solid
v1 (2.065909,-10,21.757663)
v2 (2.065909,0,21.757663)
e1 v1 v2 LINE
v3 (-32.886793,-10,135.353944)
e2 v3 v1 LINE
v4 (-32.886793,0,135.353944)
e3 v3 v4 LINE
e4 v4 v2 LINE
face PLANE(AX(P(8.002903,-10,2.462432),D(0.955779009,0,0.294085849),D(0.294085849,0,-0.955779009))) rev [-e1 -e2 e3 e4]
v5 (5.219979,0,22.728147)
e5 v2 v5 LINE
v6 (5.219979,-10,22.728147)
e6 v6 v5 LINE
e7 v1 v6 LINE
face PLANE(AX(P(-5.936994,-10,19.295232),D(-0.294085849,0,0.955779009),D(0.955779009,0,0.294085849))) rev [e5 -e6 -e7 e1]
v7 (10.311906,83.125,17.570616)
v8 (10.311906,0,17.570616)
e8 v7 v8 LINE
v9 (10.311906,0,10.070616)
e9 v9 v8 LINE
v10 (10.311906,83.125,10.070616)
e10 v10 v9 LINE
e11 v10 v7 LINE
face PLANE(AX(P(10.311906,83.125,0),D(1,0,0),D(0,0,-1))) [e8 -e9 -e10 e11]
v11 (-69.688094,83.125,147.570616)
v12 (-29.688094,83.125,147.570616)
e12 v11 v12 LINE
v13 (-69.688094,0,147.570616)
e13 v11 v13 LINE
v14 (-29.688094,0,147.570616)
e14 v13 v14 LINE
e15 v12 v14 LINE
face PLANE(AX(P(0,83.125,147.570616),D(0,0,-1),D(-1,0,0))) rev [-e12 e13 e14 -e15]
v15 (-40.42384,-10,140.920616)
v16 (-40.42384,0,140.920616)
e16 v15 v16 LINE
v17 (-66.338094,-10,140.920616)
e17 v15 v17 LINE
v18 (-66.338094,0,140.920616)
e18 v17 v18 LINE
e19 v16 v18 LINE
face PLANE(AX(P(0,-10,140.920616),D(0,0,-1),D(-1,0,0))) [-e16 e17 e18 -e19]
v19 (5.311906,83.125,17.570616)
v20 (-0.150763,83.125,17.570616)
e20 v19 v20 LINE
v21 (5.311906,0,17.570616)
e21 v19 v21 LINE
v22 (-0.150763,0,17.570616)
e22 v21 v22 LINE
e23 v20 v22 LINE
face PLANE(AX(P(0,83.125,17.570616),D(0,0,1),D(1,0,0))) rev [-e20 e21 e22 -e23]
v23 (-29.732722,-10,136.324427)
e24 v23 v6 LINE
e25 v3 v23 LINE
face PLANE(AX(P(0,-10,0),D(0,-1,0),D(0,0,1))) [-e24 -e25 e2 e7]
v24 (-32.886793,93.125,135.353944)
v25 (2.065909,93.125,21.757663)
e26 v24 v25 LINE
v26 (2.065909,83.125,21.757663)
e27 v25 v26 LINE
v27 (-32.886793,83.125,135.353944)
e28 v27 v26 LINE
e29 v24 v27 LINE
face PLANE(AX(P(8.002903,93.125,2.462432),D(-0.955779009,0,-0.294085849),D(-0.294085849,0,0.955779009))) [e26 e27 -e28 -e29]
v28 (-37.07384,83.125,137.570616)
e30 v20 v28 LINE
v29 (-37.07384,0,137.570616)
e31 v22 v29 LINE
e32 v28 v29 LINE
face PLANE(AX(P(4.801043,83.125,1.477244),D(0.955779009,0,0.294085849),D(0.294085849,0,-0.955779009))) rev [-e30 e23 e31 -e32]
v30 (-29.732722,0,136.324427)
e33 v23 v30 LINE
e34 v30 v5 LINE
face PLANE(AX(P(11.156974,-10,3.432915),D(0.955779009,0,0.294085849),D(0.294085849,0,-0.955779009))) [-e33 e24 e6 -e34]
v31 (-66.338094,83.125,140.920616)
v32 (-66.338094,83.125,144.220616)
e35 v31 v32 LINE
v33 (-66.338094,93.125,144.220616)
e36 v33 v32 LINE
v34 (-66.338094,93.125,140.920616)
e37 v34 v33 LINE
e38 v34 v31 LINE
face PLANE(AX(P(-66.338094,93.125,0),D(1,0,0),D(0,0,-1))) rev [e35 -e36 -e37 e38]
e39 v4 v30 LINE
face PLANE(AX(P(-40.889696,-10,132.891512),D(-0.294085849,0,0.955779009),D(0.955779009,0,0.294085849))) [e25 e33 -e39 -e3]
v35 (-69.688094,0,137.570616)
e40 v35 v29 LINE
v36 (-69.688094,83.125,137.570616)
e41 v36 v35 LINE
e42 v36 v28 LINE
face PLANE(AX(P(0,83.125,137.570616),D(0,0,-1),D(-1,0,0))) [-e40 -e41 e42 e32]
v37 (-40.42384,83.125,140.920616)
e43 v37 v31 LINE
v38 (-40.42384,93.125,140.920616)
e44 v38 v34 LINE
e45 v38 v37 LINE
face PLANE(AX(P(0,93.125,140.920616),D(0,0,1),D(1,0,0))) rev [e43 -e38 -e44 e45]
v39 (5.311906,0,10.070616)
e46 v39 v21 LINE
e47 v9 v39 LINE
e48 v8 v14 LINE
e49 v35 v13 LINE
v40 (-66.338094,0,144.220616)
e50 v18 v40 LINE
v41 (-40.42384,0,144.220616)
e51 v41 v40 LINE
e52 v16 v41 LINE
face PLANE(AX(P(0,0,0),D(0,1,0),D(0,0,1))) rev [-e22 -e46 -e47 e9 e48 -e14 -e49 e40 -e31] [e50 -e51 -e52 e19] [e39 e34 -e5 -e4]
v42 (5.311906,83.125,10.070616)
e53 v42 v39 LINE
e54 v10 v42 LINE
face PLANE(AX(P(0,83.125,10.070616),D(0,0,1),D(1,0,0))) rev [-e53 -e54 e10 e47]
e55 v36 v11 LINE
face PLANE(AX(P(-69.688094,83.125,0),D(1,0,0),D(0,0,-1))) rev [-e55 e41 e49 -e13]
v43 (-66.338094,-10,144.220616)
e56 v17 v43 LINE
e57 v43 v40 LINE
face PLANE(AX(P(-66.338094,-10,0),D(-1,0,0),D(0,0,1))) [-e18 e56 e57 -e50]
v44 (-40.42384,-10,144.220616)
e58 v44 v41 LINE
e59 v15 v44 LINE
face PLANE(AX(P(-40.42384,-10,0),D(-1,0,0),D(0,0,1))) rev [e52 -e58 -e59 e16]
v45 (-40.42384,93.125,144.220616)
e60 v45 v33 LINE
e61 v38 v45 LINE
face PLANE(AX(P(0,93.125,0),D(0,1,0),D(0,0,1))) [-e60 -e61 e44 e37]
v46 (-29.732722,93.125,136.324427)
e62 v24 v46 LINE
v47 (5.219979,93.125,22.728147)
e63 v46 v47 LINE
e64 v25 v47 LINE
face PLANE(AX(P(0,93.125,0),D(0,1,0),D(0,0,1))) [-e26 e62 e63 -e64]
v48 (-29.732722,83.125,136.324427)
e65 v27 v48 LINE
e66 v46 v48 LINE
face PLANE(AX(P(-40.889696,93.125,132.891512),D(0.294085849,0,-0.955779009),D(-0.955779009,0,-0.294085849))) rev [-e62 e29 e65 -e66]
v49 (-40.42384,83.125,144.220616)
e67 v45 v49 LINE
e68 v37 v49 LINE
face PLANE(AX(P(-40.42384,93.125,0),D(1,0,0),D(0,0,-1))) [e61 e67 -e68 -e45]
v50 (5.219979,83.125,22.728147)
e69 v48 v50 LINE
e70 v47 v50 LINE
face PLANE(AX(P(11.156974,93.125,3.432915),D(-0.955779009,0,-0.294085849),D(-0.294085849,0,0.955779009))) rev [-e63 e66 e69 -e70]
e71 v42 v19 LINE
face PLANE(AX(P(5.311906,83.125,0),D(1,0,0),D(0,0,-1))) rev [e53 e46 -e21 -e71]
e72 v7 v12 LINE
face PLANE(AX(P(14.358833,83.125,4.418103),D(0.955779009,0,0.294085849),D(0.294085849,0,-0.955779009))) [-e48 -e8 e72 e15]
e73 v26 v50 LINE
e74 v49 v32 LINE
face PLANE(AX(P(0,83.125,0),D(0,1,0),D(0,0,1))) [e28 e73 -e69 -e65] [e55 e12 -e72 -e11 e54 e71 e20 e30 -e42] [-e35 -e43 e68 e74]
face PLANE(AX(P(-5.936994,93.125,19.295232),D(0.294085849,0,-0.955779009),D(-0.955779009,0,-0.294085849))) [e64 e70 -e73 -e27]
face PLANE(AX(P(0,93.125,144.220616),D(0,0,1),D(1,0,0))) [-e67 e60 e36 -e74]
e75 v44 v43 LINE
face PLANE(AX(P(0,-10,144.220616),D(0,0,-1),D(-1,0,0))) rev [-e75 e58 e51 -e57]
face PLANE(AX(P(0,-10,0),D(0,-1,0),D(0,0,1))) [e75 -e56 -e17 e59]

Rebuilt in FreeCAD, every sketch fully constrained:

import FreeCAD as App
import Part
import Sketcher
from FreeCAD import Vector

doc = App.newDocument("Part")
body = doc.addObject("PartDesign::Body", "Body")

# Sketch on XZ plane
sketch1 = body.newObject("Sketcher::SketchObject", "Sketch")
sketch1.AttachmentSupport = (doc.getObject("XZ_Plane"), [""])
sketch1.MapMode = "FlatFace"
sketch1.addGeometry([
    Part.LineSegment(Vector(-70, 148, 0), Vector(-30, 148, 0)),  # 0
    Part.LineSegment(Vector(-30, 148, 0), Vector(10, 18, 0)),  # 1
    Part.LineSegment(Vector(10, 18, 0), Vector(10, 10, 0)),  # 2
    Part.LineSegment(Vector(10, 10, 0), Vector(5, 10, 0)),  # 3
    Part.LineSegment(Vector(5, 10, 0), Vector(5, 18, 0)),  # 4
    Part.LineSegment(Vector(5, 18, 0), Vector(0, 18, 0)),  # 5
    Part.LineSegment(Vector(0, 18, 0), Vector(-37, 138, 0)),  # 6
    Part.LineSegment(Vector(-37, 138, 0), Vector(-70, 138, 0)),  # 7
    Part.LineSegment(Vector(-70, 138, 0), Vector(-70, 148, 0)),  # 8
], False)
sketch1.addConstraint([
    Sketcher.Constraint("Coincident", 0, 2, 1, 1),
    Sketcher.Constraint("Coincident", 1, 2, 2, 1),
    Sketcher.Constraint("Coincident", 2, 2, 3, 1),
    Sketcher.Constraint("Coincident", 3, 2, 4, 1),
    Sketcher.Constraint("Coincident", 4, 2, 5, 1),
    Sketcher.Constraint("Coincident", 5, 2, 6, 1),
    Sketcher.Constraint("Coincident", 6, 2, 7, 1),
    Sketcher.Constraint("Coincident", 7, 2, 8, 1),
    Sketcher.Constraint("Coincident", 8, 2, 0, 1),
    Sketcher.Constraint("Horizontal", 0),
    Sketcher.Constraint("Vertical", 2),
    Sketcher.Constraint("Horizontal", 3),
    Sketcher.Constraint("Vertical", 4),
    Sketcher.Constraint("Horizontal", 5),
    Sketcher.Constraint("Horizontal", 7),
    Sketcher.Constraint("Vertical", 8),
    Sketcher.Constraint("Parallel", 1, 6),
    Sketcher.Constraint("Horizontal", 1, 2, 4, 2),
    Sketcher.Constraint("DistanceX", 0, 1, 0, 2, 40.0),
    Sketcher.Constraint("DistanceX", 3, 2, 3, 1, 5.0),
    Sketcher.Constraint("DistanceY", 8, 1, 8, 2, 10.0),
    Sketcher.Constraint("DistanceY", 2, 2, 2, 1, 7.5),
    Sketcher.Constraint("DistanceX", 0, 2, 1, 2, 40.0),
    Sketcher.Constraint("DistanceY", 1, 2, 0, 2, 130.0),
    Sketcher.Constraint("DistanceX", 5, 2, 5, 1, 5.46267),
    Sketcher.Constraint("DistanceX", 6, 2, -1, 1, 37.07384),
    Sketcher.Constraint("DistanceY", -1, 1, 0, 2, 147.570616),
])
pad1 = body.newObject("PartDesign::Pad", "Pad")
pad1.Profile = sketch1
pad1.Length = 83.125
pad1.Reversed = True

# Sketch on XZ plane
sketch2 = body.newObject("Sketcher::SketchObject", "Sketch001")
sketch2.AttachmentSupport = (doc.getObject("XZ_Plane"), [""])
sketch2.MapMode = "FlatFace"
sketch2.AttachmentOffset = App.Placement(Vector(0, 0, -83.125), App.Rotation())
sketch2.addGeometry([
    Part.LineSegment(Vector(2.1, 21.8, 0), Vector(-32.9, 135.4, 0)),  # 0
    Part.LineSegment(Vector(-32.9, 135.4, 0), Vector(-29.7, 136.3, 0)),  # 1
    Part.LineSegment(Vector(-29.7, 136.3, 0), Vector(5.2, 22.7, 0)),  # 2
    Part.LineSegment(Vector(5.2, 22.7, 0), Vector(2.1, 21.8, 0)),  # 3
    Part.LineSegment(Vector(-40.4, 144.2, 0), Vector(-40.4, 140.9, 0)),  # 4
    Part.LineSegment(Vector(-40.4, 140.9, 0), Vector(-66.3, 140.9, 0)),  # 5
    Part.LineSegment(Vector(-66.3, 140.9, 0), Vector(-66.3, 144.2, 0)),  # 6
    Part.LineSegment(Vector(-66.3, 144.2, 0), Vector(-40.4, 144.2, 0)),  # 7
], False)
sketch2.addConstraint([
    Sketcher.Constraint("Coincident", 0, 2, 1, 1),
    Sketcher.Constraint("Coincident", 1, 2, 2, 1),
    Sketcher.Constraint("Coincident", 2, 2, 3, 1),
    Sketcher.Constraint("Coincident", 3, 2, 0, 1),
    Sketcher.Constraint("Coincident", 4, 2, 5, 1),
    Sketcher.Constraint("Coincident", 5, 2, 6, 1),
    Sketcher.Constraint("Coincident", 6, 2, 7, 1),
    Sketcher.Constraint("Coincident", 7, 2, 4, 1),
    Sketcher.Constraint("Vertical", 4),
    Sketcher.Constraint("Horizontal", 5),
    Sketcher.Constraint("Vertical", 6),
    Sketcher.Constraint("Horizontal", 7),
    Sketcher.Constraint("Perpendicular", 0, 1),
    Sketcher.Constraint("Perpendicular", 1, 2),
    Sketcher.Constraint("Perpendicular", 2, 3),
    Sketcher.Constraint("DistanceY", 4, 2, 4, 1, 3.3),
    Sketcher.Constraint("Distance", 1, 3.3),
    Sketcher.Constraint("DistanceX", 1, 2, 2, 2, 34.952702),
    Sketcher.Constraint("DistanceX", 5, 2, 0, 2, 33.451301),
    Sketcher.Constraint("DistanceX", 5, 2, 5, 1, 25.914253),
    Sketcher.Constraint("DistanceX", -1, 1, 2, 2, 5.219979),
    Sketcher.Constraint("DistanceY", 2, 2, 1, 2, 113.596281),
    Sketcher.Constraint("DistanceY", 1, 2, 4, 2, 4.596189),
    Sketcher.Constraint("DistanceY", -1, 1, 0, 2, 135.353944),
])
pad2 = body.newObject("PartDesign::Pad", "Pad001")
pad2.Profile = sketch2
pad2.Length = 10
pad2.Reversed = True
doc.recompute()

datumplane = body.newObject("PartDesign::Plane", "DatumPlane")
datumplane.AttachmentSupport = (doc.getObject("XZ_Plane"), [""])
datumplane.MapMode = "FlatFace"
datumplane.AttachmentOffset = App.Placement(Vector(0, 0, -41.5625), App.Rotation())
mirrored = body.newObject("PartDesign::Mirrored", "Mirrored")
mirrored.Originals = [pad2]
mirrored.MirrorPlane = (datumplane, [""])
body.Tip = mirrored

doc.recompute()
